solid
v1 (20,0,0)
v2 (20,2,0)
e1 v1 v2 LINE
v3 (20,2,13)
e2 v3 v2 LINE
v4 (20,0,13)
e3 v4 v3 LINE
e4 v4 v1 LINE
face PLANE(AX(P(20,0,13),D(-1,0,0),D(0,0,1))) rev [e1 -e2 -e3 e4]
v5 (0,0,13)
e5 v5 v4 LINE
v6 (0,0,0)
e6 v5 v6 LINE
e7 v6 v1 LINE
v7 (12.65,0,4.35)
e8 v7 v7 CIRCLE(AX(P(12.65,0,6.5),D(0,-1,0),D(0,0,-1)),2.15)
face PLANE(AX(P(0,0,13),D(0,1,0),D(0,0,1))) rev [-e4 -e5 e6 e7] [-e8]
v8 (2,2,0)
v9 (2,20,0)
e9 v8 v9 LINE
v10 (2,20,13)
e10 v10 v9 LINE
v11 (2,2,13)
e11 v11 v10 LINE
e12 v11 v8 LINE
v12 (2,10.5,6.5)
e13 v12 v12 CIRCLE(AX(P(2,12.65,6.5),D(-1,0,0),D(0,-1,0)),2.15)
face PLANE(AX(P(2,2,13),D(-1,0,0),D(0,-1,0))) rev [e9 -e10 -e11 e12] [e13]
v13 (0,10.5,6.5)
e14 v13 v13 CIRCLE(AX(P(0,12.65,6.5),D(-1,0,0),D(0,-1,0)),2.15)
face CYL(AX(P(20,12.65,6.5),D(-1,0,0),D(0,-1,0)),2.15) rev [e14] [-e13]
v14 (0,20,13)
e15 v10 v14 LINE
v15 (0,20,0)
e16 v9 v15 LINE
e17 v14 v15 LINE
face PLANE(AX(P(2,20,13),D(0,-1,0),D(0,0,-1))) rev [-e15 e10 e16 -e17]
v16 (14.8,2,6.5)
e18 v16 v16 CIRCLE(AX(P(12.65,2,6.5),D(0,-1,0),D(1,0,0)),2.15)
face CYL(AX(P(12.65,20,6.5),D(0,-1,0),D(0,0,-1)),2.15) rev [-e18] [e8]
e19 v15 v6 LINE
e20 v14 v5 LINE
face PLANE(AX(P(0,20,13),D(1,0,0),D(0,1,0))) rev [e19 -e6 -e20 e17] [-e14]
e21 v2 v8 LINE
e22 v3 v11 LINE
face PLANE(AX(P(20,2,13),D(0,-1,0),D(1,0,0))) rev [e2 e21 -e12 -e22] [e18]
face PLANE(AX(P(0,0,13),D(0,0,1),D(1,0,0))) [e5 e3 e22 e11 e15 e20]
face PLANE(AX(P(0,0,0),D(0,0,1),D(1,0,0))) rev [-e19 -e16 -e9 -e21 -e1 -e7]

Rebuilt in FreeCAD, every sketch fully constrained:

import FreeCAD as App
import Part
import Sketcher
from FreeCAD import Vector
Q = App.Units.Quantity

doc = App.newDocument("Part")
params = doc.addObject("Spreadsheet::Sheet", "Params")
for row, (alias, value) in enumerate([
    ("sketch1_width", "20 mm"),
    ("sketch1_width2", "18 mm"),
    ("pad1_length", "13 mm"),
    ("sketch2_diameter", "4.3 mm"),
    ("sketch3_diameter", "4.3 mm"),
], start=1):
    params.set(f"A{row}", alias)
    params.set(f"B{row}", "=" + value)
    params.setAlias(f"B{row}", alias)

body = doc.addObject("PartDesign::Body", "Body")

# Sketch on XY plane
sketch1 = body.newObject("Sketcher::SketchObject", "Sketch")
sketch1.AttachmentSupport = (doc.getObject("XY_Plane"), [""])
sketch1.MapMode = "FlatFace"
sketch1.addGeometry([
    Part.LineSegment(Vector(0, 20, 0), Vector(0, 0, 0)),  # 0
    Part.LineSegment(Vector(0, 0, 0), Vector(20, 0, 0)),  # 1
    Part.LineSegment(Vector(20, 0, 0), Vector(20, 2, 0)),  # 2
    Part.LineSegment(Vector(20, 2, 0), Vector(2, 2, 0)),  # 3
    Part.LineSegment(Vector(2, 2, 0), Vector(2, 20, 0)),  # 4
    Part.LineSegment(Vector(2, 20, 0), Vector(0, 20, 0)),  # 5
], False)
sketch1.addConstraint([
    Sketcher.Constraint("Coincident", 0, 2, 1, 1),
    Sketcher.Constraint("Coincident", 1, 2, 2, 1),
    Sketcher.Constraint("Coincident", 2, 2, 3, 1),
    Sketcher.Constraint("Coincident", 3, 2, 4, 1),
    Sketcher.Constraint("Coincident", 4, 2, 5, 1),
    Sketcher.Constraint("Coincident", 5, 2, 0, 1),
    Sketcher.Constraint("Vertical", 0),
    Sketcher.Constraint("Horizontal", 1),
    Sketcher.Constraint("Vertical", 2),
    Sketcher.Constraint("Horizontal", 3),
    Sketcher.Constraint("Vertical", 4),
    Sketcher.Constraint("Horizontal", 5),
    Sketcher.Constraint("Coincident", 0, 2, -1, 1),
    Sketcher.Constraint("Equal", 1, 0),
    Sketcher.Constraint("Equal", 5, 2),
    Sketcher.Constraint("DistanceX", 1, 1, 1, 2, Q("20 mm")),
    Sketcher.Constraint("DistanceX", 3, 2, 3, 1, Q("18 mm")),
])
sketch1.setExpression("Constraints[15]", "Params.sketch1_width")
sketch1.setExpression("Constraints[16]", "Params.sketch1_width2")
pad1 = body.newObject("PartDesign::Pad", "Pad")
pad1.Profile = sketch1
pad1.setExpression("Length", "Params.pad1_length")

# Sketch on YZ plane
sketch2 = body.newObject("Sketcher::SketchObject", "Sketch001")
sketch2.AttachmentSupport = (doc.getObject("YZ_Plane"), [""])
sketch2.MapMode = "FlatFace"
sketch2.addGeometry(Part.Circle(Vector(12.7, 6.5, 0), Vector(0, 0, 1), 2.1), False)
sketch2.addConstraint([
    Sketcher.Constraint("Diameter", 0, Q("4.3 mm")),
    Sketcher.Constraint("DistanceY", -1, 1, 0, 3, Q("6.5 mm")),
    Sketcher.Constraint("DistanceX", -1, 1, 0, 3, Q("12.65 mm")),
])
sketch2.setExpression("Constraints[0]", "Params.sketch2_diameter")
pocket1 = body.newObject("PartDesign::Pocket", "Pocket")
pocket1.Profile = sketch2
pocket1.Type = "ThroughAll"
pocket1.Reversed = True

# Sketch on XZ plane
sketch3 = body.newObject("Sketcher::SketchObject", "Sketch002")
sketch3.AttachmentSupport = (doc.getObject("XZ_Plane"), [""])
sketch3.MapMode = "FlatFace"
sketch3.addGeometry(Part.Circle(Vector(12.7, 6.5, 0), Vector(0, 0, 1), 2.1), False)
sketch3.addConstraint([
    Sketcher.Constraint("Diameter", 0, Q("4.3 mm")),
    Sketcher.Constraint("DistanceY", -1, 1, 0, 3, Q("6.5 mm")),
    Sketcher.Constraint("DistanceX", -1, 1, 0, 3, Q("12.65 mm")),
])
sketch3.setExpression("Constraints[0]", "Params.sketch3_diameter")
pocket2 = body.newObject("PartDesign::Pocket", "Pocket001")
pocket2.Profile = sketch3
pocket2.Type = "ThroughAll"

doc.recompute()
